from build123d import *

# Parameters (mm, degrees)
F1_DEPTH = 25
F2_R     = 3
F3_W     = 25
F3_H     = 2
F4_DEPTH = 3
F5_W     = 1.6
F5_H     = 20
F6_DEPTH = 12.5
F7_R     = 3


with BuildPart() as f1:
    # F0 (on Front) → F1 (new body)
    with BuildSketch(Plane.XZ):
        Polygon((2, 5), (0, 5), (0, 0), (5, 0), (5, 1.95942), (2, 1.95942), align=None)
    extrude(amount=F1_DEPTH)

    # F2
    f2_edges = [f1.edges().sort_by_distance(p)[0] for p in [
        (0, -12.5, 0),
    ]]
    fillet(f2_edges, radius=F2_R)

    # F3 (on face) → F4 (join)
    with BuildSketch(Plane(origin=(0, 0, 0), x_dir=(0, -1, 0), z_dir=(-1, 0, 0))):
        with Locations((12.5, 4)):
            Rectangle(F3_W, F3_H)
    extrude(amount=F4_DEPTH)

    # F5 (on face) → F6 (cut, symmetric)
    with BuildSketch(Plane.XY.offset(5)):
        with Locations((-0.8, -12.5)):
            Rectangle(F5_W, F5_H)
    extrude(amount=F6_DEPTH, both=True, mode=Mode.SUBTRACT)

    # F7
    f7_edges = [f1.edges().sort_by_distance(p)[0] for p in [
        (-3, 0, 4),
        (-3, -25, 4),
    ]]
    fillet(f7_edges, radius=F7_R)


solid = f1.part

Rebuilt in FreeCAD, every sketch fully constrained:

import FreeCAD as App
import Part
import Sketcher

V = App.Vector


def edges_at(feature, points):
    """Names of the edges that pass closest to the given points."""
    edges = feature.Shape.Edges
    near = lambda p: min(range(len(edges)), key=lambda i: edges[i].distToShape(Part.Vertex(*p))[0])
    return sorted({f"Edge{near(p) + 1}" for p in points})


def add_polygon(sketch, points):
    """Adds a closed chain of lines whose ends are joined by coincident constraints."""
    first, n = sketch.GeometryCount, len(points)
    for a, b in zip(points, points[1:] + points[:1]):
        sketch.addGeometry(Part.LineSegment(App.Vector(*a, 0), App.Vector(*b, 0)), False)
    for i in range(n):
        sketch.addConstraint(Sketcher.Constraint("Coincident", first + i, 2, first + (i + 1) % n, 1))

doc = App.newDocument("Part")
body = doc.addObject("PartDesign::Body", "Body")

sketch1 = body.newObject("Sketcher::SketchObject", "Sketch")
sketch1.AttachmentSupport = (doc.getObject("XZ_Plane"), [""])
sketch1.MapMode = "FlatFace"
add_polygon(sketch1, [(2, 5), (0, 5), (0, 0), (5, 0), (5, 2), (2, 2)])
sketch1.addConstraint([
    Sketcher.Constraint("Horizontal", 0),
    Sketcher.Constraint("Vertical", 1),
    Sketcher.Constraint("Horizontal", 2),
    Sketcher.Constraint("Vertical", 3),
    Sketcher.Constraint("Horizontal", 4),
    Sketcher.Constraint("Vertical", 5),
    Sketcher.Constraint("Coincident", 1, 2, -1, 1),
    Sketcher.Constraint("Equal", 2, 1),
    Sketcher.Constraint("DistanceX", 0, 2, 0, 1, 2.0),
    Sketcher.Constraint("DistanceX", 2, 1, 2, 2, 5.0),
    Sketcher.Constraint("DistanceY", 3, 1, 3, 2, 1.95942),
])
pad1 = body.newObject("PartDesign::Pad", "Pad")
pad1.Profile = sketch1
pad1.Length = 25
doc.recompute()

fillet = body.newObject("PartDesign::Fillet", "Fillet")
fillet.Base = (pad1, edges_at(pad1, [(0, -12.5, 0)]))
fillet.Radius = 3

sketch2 = body.newObject("Sketcher::SketchObject", "Sketch001")
sketch2.AttachmentSupport = (doc.getObject("YZ_Plane"), [""])
sketch2.MapMode = "FlatFace"
add_polygon(sketch2, [(0, 5), (0, 3), (-25, 3), (-25, 5)])
sketch2.addConstraint([
    Sketcher.Constraint("Vertical", 0),
    Sketcher.Constraint("Horizontal", 1),
    Sketcher.Constraint("Vertical", 2),
    Sketcher.Constraint("Horizontal", 3),
    Sketcher.Constraint("PointOnObject", 0, 2, -2),
    Sketcher.Constraint("DistanceX", 1, 2, 1, 1, 25.0),
    Sketcher.Constraint("DistanceY", 0, 2, 0, 1, 2.0),
    Sketcher.Constraint("DistanceY", -1, 1, 0, 2, 3.0),
])
pad2 = body.newObject("PartDesign::Pad", "Pad001")
pad2.Profile = sketch2
pad2.Length = 3
pad2.Reversed = True

sketch3 = body.newObject("Sketcher::SketchObject", "Sketch002")
sketch3.AttachmentSupport = (doc.getObject("XY_Plane"), [""])
sketch3.MapMode = "FlatFace"
sketch3.AttachmentOffset = App.Placement(V(0, 0, 5), App.Rotation())
add_polygon(sketch3, [(-1.6, -2.5), (-1.6, -22.5), (0, -22.5), (0, -2.5)])
sketch3.addConstraint([
    Sketcher.Constraint("Vertical", 0),
    Sketcher.Constraint("Horizontal", 1),
    Sketcher.Constraint("Vertical", 2),
    Sketcher.Constraint("Horizontal", 3),
    Sketcher.Constraint("PointOnObject", 1, 2, -2),
    Sketcher.Constraint("DistanceY", 0, 2, 0, 1, 20.0),
    Sketcher.Constraint("DistanceX", 1, 1, 1, 2, 1.6),
    Sketcher.Constraint("DistanceY", 0, 2, -1, 1, 22.5),
])
pocket1 = body.newObject("PartDesign::Pocket", "Pocket")
pocket1.Profile = sketch3
pocket1.Length = 25
pocket1.Midplane = True
doc.recompute()

fillet2 = body.newObject("PartDesign::Fillet", "Fillet001")
fillet2.Base = (pocket1, edges_at(pocket1, [(-3, 0, 4), (-3, -25, 4)]))
fillet2.Radius = 3

doc.recompute()
